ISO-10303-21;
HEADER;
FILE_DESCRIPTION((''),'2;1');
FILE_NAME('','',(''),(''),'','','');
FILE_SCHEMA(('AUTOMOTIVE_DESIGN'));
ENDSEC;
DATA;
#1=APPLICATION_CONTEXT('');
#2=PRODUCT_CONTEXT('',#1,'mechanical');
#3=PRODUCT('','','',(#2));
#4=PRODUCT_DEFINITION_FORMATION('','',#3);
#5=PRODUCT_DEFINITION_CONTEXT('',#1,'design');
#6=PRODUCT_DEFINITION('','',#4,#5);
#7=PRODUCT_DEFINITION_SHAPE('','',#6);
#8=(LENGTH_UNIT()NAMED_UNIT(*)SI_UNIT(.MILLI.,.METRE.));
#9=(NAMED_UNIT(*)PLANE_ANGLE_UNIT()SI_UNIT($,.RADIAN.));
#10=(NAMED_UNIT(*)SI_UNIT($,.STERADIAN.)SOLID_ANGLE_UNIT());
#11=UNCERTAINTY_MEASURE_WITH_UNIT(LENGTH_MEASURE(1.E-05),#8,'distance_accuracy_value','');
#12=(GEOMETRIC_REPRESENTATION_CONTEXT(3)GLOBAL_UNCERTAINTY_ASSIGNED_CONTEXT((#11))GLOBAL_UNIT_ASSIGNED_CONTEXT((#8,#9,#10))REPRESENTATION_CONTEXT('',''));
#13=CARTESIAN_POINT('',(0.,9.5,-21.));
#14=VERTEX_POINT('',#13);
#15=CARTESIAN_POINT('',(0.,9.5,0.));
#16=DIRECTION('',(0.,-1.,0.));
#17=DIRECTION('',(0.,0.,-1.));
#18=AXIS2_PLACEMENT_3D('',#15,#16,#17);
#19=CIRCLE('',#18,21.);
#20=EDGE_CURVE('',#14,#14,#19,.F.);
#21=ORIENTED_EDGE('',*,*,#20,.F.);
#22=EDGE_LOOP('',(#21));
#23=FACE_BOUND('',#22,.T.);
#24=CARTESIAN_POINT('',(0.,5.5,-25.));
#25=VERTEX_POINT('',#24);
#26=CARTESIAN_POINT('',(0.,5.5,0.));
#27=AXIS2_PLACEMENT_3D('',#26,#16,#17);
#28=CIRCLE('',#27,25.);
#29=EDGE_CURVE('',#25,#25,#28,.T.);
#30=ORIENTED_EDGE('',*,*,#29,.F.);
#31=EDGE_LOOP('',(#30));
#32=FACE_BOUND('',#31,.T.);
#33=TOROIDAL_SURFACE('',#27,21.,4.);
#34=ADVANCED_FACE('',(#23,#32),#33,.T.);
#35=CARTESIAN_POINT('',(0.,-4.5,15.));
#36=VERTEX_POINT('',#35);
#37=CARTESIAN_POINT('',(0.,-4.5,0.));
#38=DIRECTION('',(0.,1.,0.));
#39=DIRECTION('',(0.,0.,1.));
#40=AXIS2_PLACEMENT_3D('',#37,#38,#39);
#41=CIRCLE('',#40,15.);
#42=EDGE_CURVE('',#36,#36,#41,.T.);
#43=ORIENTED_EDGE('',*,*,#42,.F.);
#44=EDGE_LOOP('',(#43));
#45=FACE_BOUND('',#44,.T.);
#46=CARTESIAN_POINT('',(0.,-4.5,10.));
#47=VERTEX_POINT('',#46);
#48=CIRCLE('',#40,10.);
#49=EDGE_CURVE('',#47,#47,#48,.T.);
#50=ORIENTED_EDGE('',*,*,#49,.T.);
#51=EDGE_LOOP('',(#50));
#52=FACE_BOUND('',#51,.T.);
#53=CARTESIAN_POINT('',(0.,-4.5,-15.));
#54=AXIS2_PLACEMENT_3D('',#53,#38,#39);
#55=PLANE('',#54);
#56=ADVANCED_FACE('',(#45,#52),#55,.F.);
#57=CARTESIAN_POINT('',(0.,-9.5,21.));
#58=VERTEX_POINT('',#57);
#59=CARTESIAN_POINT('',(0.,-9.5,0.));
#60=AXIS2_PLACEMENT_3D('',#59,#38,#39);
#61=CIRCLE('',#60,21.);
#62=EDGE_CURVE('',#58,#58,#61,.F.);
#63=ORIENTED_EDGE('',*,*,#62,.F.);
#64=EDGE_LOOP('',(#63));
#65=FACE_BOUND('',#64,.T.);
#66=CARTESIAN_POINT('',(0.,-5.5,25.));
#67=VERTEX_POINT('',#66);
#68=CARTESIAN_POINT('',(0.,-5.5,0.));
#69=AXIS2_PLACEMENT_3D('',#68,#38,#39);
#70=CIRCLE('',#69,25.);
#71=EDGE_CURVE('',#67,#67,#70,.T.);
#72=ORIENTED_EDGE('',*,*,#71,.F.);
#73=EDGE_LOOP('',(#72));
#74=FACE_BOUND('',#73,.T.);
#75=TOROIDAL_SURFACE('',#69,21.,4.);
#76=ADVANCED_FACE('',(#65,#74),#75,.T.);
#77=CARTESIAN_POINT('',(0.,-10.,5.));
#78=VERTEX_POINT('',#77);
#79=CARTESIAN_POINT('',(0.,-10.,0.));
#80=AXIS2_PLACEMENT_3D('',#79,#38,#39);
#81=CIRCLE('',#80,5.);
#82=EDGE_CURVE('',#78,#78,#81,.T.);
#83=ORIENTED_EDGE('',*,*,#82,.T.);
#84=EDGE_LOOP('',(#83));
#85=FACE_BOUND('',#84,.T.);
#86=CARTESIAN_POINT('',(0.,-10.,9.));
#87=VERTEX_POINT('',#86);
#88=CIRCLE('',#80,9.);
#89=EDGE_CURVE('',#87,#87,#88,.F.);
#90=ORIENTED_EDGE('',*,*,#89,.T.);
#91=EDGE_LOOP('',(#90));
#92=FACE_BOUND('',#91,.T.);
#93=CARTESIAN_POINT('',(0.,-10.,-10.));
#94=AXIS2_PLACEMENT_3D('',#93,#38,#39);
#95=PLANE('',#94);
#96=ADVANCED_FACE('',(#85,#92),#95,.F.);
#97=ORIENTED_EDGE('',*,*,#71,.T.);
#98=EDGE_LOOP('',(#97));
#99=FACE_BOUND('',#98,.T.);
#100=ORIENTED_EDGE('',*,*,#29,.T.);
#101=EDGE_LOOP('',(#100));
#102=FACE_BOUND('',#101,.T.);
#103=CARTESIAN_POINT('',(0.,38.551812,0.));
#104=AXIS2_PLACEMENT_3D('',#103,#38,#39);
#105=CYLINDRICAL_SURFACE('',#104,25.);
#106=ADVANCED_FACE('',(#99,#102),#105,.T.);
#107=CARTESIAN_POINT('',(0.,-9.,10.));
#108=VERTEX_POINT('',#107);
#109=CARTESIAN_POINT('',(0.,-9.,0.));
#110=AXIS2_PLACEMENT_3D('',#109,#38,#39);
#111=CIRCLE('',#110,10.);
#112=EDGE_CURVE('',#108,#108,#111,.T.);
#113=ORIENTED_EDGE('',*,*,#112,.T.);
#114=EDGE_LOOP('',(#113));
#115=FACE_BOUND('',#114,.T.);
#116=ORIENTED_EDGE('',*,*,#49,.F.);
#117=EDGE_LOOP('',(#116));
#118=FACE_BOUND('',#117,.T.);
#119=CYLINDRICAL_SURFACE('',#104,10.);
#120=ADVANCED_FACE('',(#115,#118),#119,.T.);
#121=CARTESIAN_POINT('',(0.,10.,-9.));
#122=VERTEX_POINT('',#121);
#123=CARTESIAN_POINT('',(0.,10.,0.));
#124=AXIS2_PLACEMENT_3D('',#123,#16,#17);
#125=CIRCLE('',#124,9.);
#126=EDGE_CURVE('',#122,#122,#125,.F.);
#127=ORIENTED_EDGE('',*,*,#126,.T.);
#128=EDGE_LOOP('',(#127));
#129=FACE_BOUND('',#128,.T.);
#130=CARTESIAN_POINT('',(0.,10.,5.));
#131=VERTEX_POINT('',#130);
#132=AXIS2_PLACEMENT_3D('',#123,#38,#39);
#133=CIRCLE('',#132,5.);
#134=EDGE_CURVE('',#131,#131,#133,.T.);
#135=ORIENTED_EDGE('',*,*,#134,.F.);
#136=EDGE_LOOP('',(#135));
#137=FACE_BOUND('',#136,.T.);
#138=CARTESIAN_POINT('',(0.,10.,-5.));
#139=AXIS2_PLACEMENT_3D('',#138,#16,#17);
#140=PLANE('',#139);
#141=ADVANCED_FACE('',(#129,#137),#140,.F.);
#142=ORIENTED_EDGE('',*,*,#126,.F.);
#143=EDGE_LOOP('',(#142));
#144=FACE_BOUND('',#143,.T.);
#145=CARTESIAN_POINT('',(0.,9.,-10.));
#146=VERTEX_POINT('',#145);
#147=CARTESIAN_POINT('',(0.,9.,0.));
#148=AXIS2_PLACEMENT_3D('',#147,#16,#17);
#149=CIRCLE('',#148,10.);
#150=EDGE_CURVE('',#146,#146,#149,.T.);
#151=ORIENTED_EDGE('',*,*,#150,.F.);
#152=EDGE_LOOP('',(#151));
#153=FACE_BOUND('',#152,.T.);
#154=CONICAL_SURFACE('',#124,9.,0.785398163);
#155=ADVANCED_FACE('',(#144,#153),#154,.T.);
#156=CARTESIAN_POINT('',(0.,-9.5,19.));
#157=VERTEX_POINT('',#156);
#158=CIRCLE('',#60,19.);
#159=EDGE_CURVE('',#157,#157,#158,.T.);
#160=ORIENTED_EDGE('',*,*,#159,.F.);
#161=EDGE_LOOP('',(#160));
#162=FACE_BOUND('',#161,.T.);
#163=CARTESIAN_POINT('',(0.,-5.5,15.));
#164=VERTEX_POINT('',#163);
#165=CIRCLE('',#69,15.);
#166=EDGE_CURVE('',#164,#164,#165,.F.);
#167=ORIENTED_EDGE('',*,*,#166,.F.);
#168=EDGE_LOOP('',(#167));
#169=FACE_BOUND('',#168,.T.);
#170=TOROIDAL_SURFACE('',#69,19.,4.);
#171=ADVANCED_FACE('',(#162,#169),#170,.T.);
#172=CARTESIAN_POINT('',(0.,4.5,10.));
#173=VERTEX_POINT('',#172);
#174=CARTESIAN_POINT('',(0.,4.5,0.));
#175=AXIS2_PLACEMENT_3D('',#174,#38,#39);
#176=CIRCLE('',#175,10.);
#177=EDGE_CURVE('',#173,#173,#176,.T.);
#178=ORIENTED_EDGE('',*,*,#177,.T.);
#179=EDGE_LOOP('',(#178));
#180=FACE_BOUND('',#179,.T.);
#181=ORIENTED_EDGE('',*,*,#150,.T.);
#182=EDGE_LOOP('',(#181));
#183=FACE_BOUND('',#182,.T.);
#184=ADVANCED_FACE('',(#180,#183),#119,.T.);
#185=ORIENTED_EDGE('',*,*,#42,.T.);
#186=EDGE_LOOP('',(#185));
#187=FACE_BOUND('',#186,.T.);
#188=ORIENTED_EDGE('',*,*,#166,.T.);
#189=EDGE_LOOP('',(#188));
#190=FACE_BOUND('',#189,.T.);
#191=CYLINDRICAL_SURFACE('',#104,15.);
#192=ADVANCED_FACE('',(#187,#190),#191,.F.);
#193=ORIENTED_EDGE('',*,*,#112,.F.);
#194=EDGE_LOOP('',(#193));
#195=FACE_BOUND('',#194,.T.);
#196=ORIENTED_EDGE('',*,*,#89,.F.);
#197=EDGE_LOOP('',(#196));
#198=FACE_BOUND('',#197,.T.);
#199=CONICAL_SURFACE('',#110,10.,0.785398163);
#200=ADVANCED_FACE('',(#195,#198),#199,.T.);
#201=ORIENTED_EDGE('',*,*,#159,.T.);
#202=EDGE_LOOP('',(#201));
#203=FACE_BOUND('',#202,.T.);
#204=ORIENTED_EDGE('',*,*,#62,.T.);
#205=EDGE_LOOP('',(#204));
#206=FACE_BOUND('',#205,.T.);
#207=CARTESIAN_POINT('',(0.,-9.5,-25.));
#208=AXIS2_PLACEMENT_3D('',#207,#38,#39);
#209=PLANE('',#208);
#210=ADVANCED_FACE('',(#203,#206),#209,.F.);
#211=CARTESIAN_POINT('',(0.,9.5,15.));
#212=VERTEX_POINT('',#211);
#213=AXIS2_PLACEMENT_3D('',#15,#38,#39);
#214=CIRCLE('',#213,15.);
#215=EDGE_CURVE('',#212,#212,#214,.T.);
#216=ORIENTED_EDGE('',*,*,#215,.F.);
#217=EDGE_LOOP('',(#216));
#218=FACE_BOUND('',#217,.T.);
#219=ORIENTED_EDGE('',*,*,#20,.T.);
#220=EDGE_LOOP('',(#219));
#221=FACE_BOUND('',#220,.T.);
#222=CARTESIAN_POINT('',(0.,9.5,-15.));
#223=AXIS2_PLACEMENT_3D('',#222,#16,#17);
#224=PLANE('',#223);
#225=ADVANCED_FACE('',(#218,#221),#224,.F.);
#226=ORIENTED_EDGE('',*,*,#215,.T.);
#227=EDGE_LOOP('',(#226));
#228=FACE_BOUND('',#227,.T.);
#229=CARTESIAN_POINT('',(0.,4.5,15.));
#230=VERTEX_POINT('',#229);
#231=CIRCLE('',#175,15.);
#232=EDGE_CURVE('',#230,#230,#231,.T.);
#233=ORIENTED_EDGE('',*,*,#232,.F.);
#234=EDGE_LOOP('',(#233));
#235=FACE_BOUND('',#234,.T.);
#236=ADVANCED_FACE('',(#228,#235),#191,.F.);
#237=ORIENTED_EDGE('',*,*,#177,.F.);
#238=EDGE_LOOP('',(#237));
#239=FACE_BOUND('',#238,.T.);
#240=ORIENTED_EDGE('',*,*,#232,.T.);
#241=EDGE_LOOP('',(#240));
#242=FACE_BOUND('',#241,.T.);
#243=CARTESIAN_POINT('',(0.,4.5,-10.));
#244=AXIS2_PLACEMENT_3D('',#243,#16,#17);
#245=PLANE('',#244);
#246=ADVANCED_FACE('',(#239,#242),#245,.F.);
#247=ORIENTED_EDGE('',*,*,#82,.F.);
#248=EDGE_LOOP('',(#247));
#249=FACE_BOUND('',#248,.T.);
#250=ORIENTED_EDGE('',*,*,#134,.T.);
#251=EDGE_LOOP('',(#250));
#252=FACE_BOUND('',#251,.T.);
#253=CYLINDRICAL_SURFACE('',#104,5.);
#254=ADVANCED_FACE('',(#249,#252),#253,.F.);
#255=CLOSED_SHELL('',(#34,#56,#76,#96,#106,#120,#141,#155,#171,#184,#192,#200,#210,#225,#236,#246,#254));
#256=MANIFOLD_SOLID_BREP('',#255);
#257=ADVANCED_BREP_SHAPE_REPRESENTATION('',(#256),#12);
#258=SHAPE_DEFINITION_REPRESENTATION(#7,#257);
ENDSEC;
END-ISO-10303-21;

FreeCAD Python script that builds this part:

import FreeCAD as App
import Part
import Sketcher
from FreeCAD import Vector


def edges_at(feature, points):
    """Names of the edges that pass closest to the given points."""
    edges = feature.Shape.Edges
    near = lambda p: min(range(len(edges)), key=lambda i: edges[i].distToShape(Part.Vertex(*p))[0])
    return sorted({f"Edge{near(p) + 1}" for p in points})

doc = App.newDocument("Part")
body = doc.addObject("PartDesign::Body", "Body")

# Sketch on YZ plane
sketch1 = body.newObject("Sketcher::SketchObject", "Sketch")
sketch1.AttachmentSupport = (doc.getObject("YZ_Plane"), [""])
sketch1.MapMode = "FlatFace"
sketch1.addGeometry(Part.LineSegment(Vector(4.5, -10, 0), Vector(10, -10, 0)), False)
sketch1.addGeometry(Part.LineSegment(Vector(10, -10, 0), Vector(10, -5, 0)), False)
sketch1.addGeometry(Part.LineSegment(Vector(10, -5, 0), Vector(-10, -5, 0)), False)
sketch1.addGeometry(Part.LineSegment(Vector(-10, -5, 0), Vector(-10, -10, 0)), False)
sketch1.addGeometry(Part.LineSegment(Vector(-10, -10, 0), Vector(-4.5, -10, 0)), False)
sketch1.addGeometry(Part.LineSegment(Vector(-4.5, -10, 0), Vector(-4.5, -15, 0)), False)
sketch1.addGeometry(Part.LineSegment(Vector(-4.5, -15, 0), Vector(-9.5, -15, 0)), False)
sketch1.addGeometry(Part.LineSegment(Vector(-9.5, -15, 0), Vector(-9.5, -25, 0)), False)
sketch1.addGeometry(Part.LineSegment(Vector(-9.5, -25, 0), Vector(9.5, -25, 0)), False)
sketch1.addGeometry(Part.LineSegment(Vector(9.5, -25, 0), Vector(9.5, -15, 0)), False)
sketch1.addGeometry(Part.LineSegment(Vector(9.5, -15, 0), Vector(4.5, -15, 0)), False)
sketch1.addGeometry(Part.LineSegment(Vector(4.5, -15, 0), Vector(4.5, -10, 0)), False)
sketch1.addConstraint(Sketcher.Constraint("Coincident", 0, 2, 1, 1))
sketch1.addConstraint(Sketcher.Constraint("Coincident", 1, 2, 2, 1))
sketch1.addConstraint(Sketcher.Constraint("Coincident", 2, 2, 3, 1))
sketch1.addConstraint(Sketcher.Constraint("Coincident", 3, 2, 4, 1))
sketch1.addConstraint(Sketcher.Constraint("Coincident", 4, 2, 5, 1))
sketch1.addConstraint(Sketcher.Constraint("Coincident", 5, 2, 6, 1))
sketch1.addConstraint(Sketcher.Constraint("Coincident", 6, 2, 7, 1))
sketch1.addConstraint(Sketcher.Constraint("Coincident", 7, 2, 8, 1))
sketch1.addConstraint(Sketcher.Constraint("Coincident", 8, 2, 9, 1))
sketch1.addConstraint(Sketcher.Constraint("Coincident", 9, 2, 10, 1))
sketch1.addConstraint(Sketcher.Constraint("Coincident", 10, 2, 11, 1))
sketch1.addConstraint(Sketcher.Constraint("Coincident", 11, 2, 0, 1))
sketch1.addConstraint(Sketcher.Constraint("Horizontal", 0))
sketch1.addConstraint(Sketcher.Constraint("Vertical", 1))
sketch1.addConstraint(Sketcher.Constraint("Horizontal", 2))
sketch1.addConstraint(Sketcher.Constraint("Vertical", 3))
sketch1.addConstraint(Sketcher.Constraint("Horizontal", 4))
sketch1.addConstraint(Sketcher.Constraint("Vertical", 5))
sketch1.addConstraint(Sketcher.Constraint("Horizontal", 6))
sketch1.addConstraint(Sketcher.Constraint("Vertical", 7))
sketch1.addConstraint(Sketcher.Constraint("Horizontal", 8))
sketch1.addConstraint(Sketcher.Constraint("Vertical", 9))
sketch1.addConstraint(Sketcher.Constraint("Horizontal", 10))
sketch1.addConstraint(Sketcher.Constraint("Vertical", 11))
sketch1.addConstraint(Sketcher.Constraint("Symmetric", 0, 2, 3, 2, -2))
sketch1.addConstraint(Sketcher.Constraint("Symmetric", 6, 2, 9, 2, -2))
sketch1.addConstraint(Sketcher.Constraint("Equal", 0, 4))
sketch1.addConstraint(Sketcher.Constraint("Equal", 10, 1))
sketch1.addConstraint(Sketcher.Constraint("Equal", 3, 5))
sketch1.addConstraint(Sketcher.Constraint("DistanceX", 2, 2, 2, 1, 20.0))
sketch1.addConstraint(Sketcher.Constraint("DistanceX", 6, 2, 6, 1, 5.0))
sketch1.addConstraint(Sketcher.Constraint("DistanceX", 8, 1, 8, 2, 19.0))
sketch1.addConstraint(Sketcher.Constraint("DistanceY", 7, 2, 7, 1, 10.0))
sketch1.addConstraint(Sketcher.Constraint("DistanceY", 0, 2, -1, 1, 10.0))
revolution = body.newObject("PartDesign::Revolution", "Revolution")
revolution.Profile = sketch1
revolution.ReferenceAxis = (sketch1, ["H_Axis"])
revolution.Angle = 360
doc.recompute()

fillet = body.newObject("PartDesign::Fillet", "Fillet")
fillet.Base = (revolution, edges_at(revolution, [(0, -9.5, -15), (0, -9.5, -25), (0, 9.5, -25)]))
fillet.Radius = 4
doc.recompute()

chamfer = body.newObject("PartDesign::Chamfer", "Chamfer")
chamfer.Base = (fillet, edges_at(fillet, [(0, -10, -10), (0, 10, -10)]))
chamfer.Size = 1

doc.recompute()
